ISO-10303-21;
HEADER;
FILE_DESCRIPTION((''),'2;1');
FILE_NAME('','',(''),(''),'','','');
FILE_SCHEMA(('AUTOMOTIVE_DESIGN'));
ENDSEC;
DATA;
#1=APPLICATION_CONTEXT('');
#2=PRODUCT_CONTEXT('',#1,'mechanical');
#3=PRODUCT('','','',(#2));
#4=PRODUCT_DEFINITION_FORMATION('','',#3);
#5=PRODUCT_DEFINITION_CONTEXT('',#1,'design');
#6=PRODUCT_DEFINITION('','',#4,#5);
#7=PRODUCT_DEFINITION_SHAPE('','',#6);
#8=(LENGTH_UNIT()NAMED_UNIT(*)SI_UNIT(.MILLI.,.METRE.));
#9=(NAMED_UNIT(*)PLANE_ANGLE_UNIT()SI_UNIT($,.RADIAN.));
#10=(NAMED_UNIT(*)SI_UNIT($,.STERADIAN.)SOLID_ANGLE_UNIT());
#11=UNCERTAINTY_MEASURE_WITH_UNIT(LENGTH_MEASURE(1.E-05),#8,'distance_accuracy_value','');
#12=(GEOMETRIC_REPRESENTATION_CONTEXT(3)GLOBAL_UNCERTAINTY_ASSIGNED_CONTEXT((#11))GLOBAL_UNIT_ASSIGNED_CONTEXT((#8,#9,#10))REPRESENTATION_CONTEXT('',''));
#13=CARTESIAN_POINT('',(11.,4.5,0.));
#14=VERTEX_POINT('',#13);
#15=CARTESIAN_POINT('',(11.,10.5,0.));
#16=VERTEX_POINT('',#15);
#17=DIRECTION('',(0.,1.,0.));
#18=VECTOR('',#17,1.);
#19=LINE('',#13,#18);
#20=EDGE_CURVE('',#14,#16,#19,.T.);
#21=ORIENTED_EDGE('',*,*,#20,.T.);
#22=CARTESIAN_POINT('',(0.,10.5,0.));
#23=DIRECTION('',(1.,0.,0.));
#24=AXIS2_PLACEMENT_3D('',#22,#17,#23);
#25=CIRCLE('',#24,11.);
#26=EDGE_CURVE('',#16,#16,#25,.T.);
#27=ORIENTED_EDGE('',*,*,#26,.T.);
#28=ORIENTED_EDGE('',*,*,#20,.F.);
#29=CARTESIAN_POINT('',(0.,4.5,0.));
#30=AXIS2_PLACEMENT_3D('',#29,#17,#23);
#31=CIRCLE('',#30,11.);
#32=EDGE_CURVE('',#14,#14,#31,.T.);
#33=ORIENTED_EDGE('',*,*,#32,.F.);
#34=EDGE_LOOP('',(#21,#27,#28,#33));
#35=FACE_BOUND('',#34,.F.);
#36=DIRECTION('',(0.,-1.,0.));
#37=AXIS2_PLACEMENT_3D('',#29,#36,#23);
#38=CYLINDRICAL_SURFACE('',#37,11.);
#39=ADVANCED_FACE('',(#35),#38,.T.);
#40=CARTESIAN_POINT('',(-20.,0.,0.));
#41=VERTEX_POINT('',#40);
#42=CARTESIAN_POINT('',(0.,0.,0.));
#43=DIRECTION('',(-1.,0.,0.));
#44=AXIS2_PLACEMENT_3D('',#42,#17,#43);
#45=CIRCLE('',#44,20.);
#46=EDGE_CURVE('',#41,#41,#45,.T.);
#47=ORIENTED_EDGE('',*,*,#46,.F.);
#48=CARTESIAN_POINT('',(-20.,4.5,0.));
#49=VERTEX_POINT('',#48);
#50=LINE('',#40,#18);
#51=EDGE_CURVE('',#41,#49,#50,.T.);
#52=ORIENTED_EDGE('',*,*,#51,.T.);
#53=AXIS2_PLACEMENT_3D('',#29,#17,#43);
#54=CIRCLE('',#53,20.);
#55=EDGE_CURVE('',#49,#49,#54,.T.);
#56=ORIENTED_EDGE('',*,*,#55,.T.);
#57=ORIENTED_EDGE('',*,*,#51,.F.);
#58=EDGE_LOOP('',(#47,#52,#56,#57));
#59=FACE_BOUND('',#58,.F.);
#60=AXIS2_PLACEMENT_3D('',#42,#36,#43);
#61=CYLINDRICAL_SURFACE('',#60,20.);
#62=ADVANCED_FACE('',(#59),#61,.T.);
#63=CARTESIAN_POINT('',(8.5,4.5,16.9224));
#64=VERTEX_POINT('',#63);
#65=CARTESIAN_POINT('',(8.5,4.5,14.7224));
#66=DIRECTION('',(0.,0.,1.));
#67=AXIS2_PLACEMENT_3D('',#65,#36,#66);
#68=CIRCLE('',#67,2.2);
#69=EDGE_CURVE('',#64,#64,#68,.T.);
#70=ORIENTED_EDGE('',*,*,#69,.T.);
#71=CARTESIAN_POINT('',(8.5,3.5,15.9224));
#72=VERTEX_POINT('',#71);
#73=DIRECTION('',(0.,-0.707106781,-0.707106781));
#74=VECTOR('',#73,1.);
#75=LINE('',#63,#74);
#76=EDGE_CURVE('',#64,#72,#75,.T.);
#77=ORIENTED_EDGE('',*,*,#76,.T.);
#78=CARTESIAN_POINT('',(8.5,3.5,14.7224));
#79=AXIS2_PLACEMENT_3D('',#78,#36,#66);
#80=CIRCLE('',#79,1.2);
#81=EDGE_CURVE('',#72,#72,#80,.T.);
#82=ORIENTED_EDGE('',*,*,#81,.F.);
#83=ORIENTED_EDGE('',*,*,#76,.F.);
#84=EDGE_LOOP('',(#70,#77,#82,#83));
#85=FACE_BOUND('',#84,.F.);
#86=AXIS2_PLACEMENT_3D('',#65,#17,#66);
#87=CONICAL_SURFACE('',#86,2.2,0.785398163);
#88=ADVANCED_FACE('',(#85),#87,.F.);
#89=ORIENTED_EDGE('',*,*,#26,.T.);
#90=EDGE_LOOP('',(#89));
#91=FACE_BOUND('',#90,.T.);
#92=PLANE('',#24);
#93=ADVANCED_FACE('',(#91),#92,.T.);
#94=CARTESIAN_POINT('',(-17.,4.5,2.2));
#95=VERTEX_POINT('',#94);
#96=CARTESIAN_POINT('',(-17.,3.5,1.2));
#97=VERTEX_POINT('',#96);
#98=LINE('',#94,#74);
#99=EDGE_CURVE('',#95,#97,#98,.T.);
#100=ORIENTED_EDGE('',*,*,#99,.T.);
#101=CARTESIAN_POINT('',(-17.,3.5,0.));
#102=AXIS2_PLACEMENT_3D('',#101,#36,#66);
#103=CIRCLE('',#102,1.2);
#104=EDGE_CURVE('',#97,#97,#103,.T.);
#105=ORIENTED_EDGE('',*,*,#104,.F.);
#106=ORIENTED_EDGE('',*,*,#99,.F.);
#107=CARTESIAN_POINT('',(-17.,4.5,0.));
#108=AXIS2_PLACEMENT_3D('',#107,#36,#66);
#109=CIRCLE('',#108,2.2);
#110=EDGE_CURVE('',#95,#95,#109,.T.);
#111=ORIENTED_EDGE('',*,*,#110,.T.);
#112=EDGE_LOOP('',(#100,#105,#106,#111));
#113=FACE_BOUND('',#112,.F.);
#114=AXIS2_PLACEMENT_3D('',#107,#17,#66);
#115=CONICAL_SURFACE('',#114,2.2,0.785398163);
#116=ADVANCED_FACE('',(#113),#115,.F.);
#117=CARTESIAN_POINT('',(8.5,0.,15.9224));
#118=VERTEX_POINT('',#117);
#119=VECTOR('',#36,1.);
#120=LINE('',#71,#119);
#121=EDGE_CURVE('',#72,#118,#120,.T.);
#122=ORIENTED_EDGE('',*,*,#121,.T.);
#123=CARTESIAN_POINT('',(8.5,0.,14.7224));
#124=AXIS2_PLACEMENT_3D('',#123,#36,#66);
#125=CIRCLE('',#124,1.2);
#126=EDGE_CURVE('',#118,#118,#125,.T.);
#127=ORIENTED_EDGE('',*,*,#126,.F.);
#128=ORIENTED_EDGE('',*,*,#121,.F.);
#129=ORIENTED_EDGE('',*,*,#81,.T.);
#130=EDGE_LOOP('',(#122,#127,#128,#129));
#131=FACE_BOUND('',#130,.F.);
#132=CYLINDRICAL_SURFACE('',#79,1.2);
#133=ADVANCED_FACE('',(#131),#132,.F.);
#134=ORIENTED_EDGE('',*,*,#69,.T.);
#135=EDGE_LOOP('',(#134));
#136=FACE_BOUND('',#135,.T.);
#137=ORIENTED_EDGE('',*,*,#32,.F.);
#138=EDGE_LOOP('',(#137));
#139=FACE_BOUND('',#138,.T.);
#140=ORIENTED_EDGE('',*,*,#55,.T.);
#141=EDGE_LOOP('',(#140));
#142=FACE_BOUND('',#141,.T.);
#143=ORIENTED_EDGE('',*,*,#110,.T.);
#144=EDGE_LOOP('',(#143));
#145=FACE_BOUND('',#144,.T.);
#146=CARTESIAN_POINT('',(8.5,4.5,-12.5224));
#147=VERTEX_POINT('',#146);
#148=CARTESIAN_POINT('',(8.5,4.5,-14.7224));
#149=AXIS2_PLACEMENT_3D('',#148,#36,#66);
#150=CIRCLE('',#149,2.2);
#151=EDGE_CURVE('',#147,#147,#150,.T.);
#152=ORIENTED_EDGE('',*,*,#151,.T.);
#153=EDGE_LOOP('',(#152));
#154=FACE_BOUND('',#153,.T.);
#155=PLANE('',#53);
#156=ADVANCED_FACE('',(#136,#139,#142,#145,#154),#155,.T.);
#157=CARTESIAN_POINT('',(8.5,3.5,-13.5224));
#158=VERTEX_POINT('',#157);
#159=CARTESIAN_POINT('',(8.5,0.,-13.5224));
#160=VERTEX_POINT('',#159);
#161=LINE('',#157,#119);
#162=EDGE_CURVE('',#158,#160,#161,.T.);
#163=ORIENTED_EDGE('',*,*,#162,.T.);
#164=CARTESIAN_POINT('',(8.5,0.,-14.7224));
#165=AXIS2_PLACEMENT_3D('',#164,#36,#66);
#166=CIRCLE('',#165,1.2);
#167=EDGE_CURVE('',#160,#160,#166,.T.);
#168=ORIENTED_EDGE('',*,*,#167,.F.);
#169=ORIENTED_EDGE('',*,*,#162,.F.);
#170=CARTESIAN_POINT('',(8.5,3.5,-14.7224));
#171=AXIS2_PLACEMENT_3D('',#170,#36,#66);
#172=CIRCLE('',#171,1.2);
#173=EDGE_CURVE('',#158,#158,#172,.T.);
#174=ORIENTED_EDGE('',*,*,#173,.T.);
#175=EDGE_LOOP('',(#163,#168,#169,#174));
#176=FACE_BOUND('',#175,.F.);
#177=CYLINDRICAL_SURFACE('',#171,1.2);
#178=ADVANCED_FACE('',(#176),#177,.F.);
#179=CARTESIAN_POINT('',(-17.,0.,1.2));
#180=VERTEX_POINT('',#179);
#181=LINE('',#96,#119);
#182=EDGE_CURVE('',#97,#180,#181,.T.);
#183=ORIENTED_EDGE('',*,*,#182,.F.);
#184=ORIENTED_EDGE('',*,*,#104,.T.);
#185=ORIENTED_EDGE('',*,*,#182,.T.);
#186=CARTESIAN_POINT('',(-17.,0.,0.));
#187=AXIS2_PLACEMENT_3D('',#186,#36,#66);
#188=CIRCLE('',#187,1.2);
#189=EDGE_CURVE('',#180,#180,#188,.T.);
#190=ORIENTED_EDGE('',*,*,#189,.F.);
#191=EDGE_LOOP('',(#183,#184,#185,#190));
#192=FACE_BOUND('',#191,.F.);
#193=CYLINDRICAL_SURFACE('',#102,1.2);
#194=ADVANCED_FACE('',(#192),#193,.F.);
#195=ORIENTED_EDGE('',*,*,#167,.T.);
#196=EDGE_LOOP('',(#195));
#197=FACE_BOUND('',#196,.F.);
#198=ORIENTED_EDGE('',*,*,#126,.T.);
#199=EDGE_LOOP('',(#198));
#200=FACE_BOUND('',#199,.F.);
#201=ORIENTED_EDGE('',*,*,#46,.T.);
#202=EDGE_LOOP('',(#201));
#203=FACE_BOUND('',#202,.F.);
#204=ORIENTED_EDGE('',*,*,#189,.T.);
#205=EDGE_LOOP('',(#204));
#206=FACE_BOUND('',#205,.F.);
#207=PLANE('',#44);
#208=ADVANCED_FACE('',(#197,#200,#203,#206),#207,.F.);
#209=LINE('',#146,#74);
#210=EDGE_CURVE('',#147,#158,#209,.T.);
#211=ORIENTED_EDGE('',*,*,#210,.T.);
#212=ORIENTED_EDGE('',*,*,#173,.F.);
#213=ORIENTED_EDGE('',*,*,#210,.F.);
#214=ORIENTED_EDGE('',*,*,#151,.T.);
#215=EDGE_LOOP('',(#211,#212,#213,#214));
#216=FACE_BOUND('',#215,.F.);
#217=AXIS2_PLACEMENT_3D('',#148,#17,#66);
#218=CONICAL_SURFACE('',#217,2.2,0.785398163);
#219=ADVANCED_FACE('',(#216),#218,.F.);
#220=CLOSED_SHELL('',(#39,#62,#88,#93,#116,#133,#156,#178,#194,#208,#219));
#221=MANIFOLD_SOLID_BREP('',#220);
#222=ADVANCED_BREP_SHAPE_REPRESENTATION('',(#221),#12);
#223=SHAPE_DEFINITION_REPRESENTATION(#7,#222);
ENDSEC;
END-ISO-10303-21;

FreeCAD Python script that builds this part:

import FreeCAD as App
import Part
import Sketcher
Q = App.Units.Quantity

doc = App.newDocument("Part")
params = doc.addObject("Spreadsheet::Sheet", "Params")
for row, (alias, value) in enumerate([
    ("sketch1_diameter", "40 mm"),
    ("pad1_length", "4.5 mm"),
    ("sketch2_diameter", "22 mm"),
    ("pad2_length", "6 mm"),
    ("sketch3_diameter", "2.4 mm"),
    ("hole_diameter", "2.4 mm"),
    ("hole_csink_diameter", "4.4 mm"),
], start=1):
    params.set(f"A{row}", alias)
    params.set(f"B{row}", "=" + value)
    params.setAlias(f"B{row}", alias)

body = doc.addObject("PartDesign::Body", "Body")

# Sketch on XZ plane
sketch1 = body.newObject("Sketcher::SketchObject", "Sketch")
sketch1.AttachmentSupport = (doc.getObject("XZ_Plane"), [""])
sketch1.MapMode = "FlatFace"
sketch1.addGeometry(Part.Circle(App.Vector(0, 0, 0), App.Vector(0, 0, 1), 20), False)
sketch1.addConstraint([
    Sketcher.Constraint("Coincident", 0, 3, -1, 1),
    Sketcher.Constraint("Diameter", 0, Q("40 mm")),
])
sketch1.setExpression("Constraints[1]", "Params.sketch1_diameter")
pad1 = body.newObject("PartDesign::Pad", "Pad")
pad1.Profile = sketch1
pad1.setExpression("Length", "Params.pad1_length")
pad1.Reversed = True

# Sketch on XZ plane
sketch2 = body.newObject("Sketcher::SketchObject", "Sketch001")
sketch2.AttachmentSupport = (doc.getObject("XZ_Plane"), [""])
sketch2.MapMode = "FlatFace"
sketch2.AttachmentOffset = App.Placement(App.Vector(0, 0, -4.5), App.Rotation())
sketch2.addGeometry(Part.Circle(App.Vector(0, 0, 0), App.Vector(0, 0, 1), 11), False)
sketch2.addConstraint([
    Sketcher.Constraint("Coincident", 0, 3, -1, 1),
    Sketcher.Constraint("Diameter", 0, Q("22 mm")),
])
sketch2.setExpression("Constraints[1]", "Params.sketch2_diameter")
pad2 = body.newObject("PartDesign::Pad", "Pad001")
pad2.Profile = sketch2
pad2.setExpression("Length", "Params.pad2_length")
pad2.Reversed = True

# Sketch on XZ plane
sketch3 = body.newObject("Sketcher::SketchObject", "Sketch002")
sketch3.AttachmentSupport = (doc.getObject("XZ_Plane"), [""])
sketch3.MapMode = "FlatFace"
sketch3.AttachmentOffset = App.Placement(App.Vector(0, 0, -4.5), App.Rotation())
sketch3.addGeometry([
    Part.Circle(App.Vector(-17, 0, 0), App.Vector(0, 0, 1), 1.2),
    Part.Circle(App.Vector(8.5, 14.7, 0), App.Vector(0, 0, 1), 1.2),
    Part.Circle(App.Vector(8.5, -14.7, 0), App.Vector(0, 0, 1), 1.2),
], False)
sketch3.addConstraint([
    Sketcher.Constraint("Equal", 0, 1),
    Sketcher.Constraint("Equal", 1, 2),
    Sketcher.Constraint("Symmetric", 1, 3, 2, 3, -1),
    Sketcher.Constraint("PointOnObject", 0, 3, -1),
    Sketcher.Constraint("Diameter", 0, Q("2.4 mm")),
    Sketcher.Constraint("DistanceX", 0, 3, -1, 1, Q("17 mm")),
    Sketcher.Constraint("DistanceX", -1, 1, 1, 3, Q("8.5 mm")),
    Sketcher.Constraint("DistanceY", -1, 1, 1, 3, Q("14.7224 mm")),
])
sketch3.setExpression("Constraints[4]", "Params.sketch3_diameter")
doc.recompute()
hole = body.newObject("PartDesign::Hole", "Hole")
hole.Profile = sketch3
hole.ThreadType = "None"
hole.setExpression("Diameter", "Params.hole_diameter")
hole.DepthType = "ThroughAll"
hole.HoleCutType = "Countersink"
hole.setExpression("HoleCutDiameter", "Params.hole_csink_diameter")
hole.HoleCutCountersinkAngle = 90
hole.Reversed = True

doc.recompute()
